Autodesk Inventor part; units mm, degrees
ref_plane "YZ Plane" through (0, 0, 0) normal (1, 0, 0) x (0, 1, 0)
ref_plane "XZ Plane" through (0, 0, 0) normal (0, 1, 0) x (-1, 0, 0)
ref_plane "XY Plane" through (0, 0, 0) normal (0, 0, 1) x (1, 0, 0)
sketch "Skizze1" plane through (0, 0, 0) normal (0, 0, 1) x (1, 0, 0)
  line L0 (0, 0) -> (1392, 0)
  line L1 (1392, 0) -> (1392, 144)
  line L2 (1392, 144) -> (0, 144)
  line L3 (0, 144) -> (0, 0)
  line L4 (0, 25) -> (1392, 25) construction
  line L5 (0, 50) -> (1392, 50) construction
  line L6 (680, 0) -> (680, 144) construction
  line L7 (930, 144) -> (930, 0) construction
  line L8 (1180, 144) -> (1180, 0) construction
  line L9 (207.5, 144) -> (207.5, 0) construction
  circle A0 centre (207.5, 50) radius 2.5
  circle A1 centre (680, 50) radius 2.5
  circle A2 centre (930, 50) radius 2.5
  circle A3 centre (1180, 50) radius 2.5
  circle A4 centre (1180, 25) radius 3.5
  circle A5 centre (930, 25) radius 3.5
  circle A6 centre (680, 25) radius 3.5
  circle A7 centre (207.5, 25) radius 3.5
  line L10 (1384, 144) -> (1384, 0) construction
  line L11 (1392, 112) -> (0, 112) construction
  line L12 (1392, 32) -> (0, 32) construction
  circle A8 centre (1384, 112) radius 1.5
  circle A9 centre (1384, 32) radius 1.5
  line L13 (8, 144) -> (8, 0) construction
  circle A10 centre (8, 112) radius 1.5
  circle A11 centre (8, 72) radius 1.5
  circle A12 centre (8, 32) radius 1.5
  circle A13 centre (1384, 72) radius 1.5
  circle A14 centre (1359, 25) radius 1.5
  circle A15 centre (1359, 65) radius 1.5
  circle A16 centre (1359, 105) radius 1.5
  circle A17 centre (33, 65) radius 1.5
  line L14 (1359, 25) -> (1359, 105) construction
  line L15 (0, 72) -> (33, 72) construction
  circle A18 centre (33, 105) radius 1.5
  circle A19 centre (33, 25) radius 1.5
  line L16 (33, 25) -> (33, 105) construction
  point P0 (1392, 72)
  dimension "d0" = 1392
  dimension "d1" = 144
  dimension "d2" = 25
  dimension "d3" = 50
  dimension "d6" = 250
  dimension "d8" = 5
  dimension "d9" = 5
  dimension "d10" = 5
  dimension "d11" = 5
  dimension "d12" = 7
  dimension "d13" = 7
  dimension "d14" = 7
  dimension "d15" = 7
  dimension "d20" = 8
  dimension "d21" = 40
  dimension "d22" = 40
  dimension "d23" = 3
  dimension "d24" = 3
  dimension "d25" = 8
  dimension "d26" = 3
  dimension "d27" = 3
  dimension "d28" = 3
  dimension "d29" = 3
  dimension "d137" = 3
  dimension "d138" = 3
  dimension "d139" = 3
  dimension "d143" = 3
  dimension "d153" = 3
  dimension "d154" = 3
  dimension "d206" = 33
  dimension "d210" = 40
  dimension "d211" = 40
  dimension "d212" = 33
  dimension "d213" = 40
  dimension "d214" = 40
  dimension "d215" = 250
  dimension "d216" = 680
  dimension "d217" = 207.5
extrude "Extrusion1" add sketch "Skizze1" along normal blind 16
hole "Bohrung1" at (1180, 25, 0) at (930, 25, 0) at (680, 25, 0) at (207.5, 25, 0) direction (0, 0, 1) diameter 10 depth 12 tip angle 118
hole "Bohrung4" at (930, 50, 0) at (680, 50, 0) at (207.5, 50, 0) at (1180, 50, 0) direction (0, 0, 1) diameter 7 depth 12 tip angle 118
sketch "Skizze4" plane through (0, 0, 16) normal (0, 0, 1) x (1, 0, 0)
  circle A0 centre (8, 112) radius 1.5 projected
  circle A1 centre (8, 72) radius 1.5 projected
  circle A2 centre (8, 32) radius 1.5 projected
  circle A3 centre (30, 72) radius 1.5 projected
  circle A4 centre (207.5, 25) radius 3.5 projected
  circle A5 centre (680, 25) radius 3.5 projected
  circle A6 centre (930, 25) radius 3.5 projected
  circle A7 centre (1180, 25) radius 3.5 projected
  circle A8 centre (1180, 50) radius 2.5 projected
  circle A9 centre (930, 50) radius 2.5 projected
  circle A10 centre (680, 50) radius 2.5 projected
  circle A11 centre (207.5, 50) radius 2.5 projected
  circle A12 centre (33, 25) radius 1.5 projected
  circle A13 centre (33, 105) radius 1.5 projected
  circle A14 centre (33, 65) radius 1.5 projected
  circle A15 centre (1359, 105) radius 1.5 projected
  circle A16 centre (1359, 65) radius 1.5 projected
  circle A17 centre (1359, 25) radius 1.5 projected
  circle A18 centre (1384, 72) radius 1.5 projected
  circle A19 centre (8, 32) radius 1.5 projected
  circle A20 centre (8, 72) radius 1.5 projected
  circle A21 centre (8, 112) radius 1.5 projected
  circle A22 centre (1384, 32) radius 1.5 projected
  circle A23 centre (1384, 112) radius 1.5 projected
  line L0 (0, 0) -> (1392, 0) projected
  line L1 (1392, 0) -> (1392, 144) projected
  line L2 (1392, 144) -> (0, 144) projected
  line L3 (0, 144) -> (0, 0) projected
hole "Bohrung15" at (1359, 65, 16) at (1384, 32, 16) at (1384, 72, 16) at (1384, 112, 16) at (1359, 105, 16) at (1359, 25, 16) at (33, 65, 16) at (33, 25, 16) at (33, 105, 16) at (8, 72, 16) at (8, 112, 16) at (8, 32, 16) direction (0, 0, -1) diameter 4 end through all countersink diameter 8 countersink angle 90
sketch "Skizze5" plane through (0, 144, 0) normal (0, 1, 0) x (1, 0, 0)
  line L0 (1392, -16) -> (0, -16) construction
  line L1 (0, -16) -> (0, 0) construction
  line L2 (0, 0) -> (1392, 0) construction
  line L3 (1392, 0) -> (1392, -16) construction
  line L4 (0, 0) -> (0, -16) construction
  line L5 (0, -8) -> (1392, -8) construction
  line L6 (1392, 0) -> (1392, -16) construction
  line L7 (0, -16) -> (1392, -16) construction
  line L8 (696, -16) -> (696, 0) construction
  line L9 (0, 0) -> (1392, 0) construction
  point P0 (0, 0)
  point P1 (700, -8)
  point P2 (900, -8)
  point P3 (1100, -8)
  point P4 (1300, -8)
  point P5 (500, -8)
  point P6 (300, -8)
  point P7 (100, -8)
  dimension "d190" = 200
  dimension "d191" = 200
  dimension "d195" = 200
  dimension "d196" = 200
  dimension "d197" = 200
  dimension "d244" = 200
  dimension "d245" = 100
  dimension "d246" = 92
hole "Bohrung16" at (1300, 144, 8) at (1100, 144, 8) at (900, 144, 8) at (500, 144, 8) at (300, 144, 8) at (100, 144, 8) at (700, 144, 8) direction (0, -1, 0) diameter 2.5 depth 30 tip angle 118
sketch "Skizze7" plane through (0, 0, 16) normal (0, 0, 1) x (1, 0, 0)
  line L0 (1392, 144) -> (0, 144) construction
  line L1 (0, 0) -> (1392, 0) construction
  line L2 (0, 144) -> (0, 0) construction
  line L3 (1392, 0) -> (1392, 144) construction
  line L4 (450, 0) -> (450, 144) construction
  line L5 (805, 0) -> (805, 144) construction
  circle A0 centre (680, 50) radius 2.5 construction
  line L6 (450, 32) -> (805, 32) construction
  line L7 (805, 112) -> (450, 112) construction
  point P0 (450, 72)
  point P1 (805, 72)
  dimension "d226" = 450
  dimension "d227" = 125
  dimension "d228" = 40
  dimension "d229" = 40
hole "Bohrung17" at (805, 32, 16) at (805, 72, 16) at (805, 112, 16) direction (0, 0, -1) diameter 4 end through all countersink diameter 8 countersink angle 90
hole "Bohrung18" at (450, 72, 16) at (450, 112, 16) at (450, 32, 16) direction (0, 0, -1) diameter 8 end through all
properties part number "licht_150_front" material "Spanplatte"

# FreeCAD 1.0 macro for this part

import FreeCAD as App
import Part
import Sketcher

V = App.Vector

doc = App.newDocument("Part")
body = doc.addObject("PartDesign::Body", "Body")

# Sketch on XY plane
sketch1 = body.newObject("Sketcher::SketchObject", "Sketch")
sketch1.AttachmentSupport = (doc.getObject("XY_Plane"), [""])
sketch1.MapMode = "FlatFace"
sketch1.addGeometry(Part.LineSegment(V(0, 144, 0), V(0, 0, 0)), False)
sketch1.addGeometry(Part.LineSegment(V(0, 0, 0), V(1392, 0, 0)), False)
sketch1.addGeometry(Part.LineSegment(V(1392, 0, 0), V(1392, 144, 0)), False)
sketch1.addGeometry(Part.LineSegment(V(1392, 144, 0), V(0, 144, 0)), False)
sketch1.addGeometry(Part.Circle(V(33, 25, 0), V(0, 0, 1), 1.5), False)
sketch1.addGeometry(Part.Circle(V(8, 32, 0), V(0, 0, 1), 1.5), False)
sketch1.addGeometry(Part.Circle(V(207.5, 25, 0), V(0, 0, 1), 3.5), False)
sketch1.addGeometry(Part.Circle(V(680, 25, 0), V(0, 0, 1), 3.5), False)
sketch1.addGeometry(Part.Circle(V(207.5, 50, 0), V(0, 0, 1), 2.5), False)
sketch1.addGeometry(Part.Circle(V(33, 65, 0), V(0, 0, 1), 1.5), False)
sketch1.addGeometry(Part.Circle(V(680, 50, 0), V(0, 0, 1), 2.5), False)
sketch1.addGeometry(Part.Circle(V(930, 25, 0), V(0, 0, 1), 3.5), False)
sketch1.addGeometry(Part.Circle(V(1180, 25, 0), V(0, 0, 1), 3.5), False)
sketch1.addGeometry(Part.Circle(V(1359, 25, 0), V(0, 0, 1), 1.5), False)
sketch1.addGeometry(Part.Circle(V(1384, 32, 0), V(0, 0, 1), 1.5), False)
sketch1.addGeometry(Part.Circle(V(930, 50, 0), V(0, 0, 1), 2.5), False)
sketch1.addGeometry(Part.Circle(V(1180, 50, 0), V(0, 0, 1), 2.5), False)
sketch1.addGeometry(Part.Circle(V(1359, 65, 0), V(0, 0, 1), 1.5), False)
sketch1.addGeometry(Part.Circle(V(8, 72, 0), V(0, 0, 1), 1.5), False)
sketch1.addGeometry(Part.Circle(V(33, 105, 0), V(0, 0, 1), 1.5), False)
sketch1.addGeometry(Part.Circle(V(8, 112, 0), V(0, 0, 1), 1.5), False)
sketch1.addGeometry(Part.Circle(V(1384, 72, 0), V(0, 0, 1), 1.5), False)
sketch1.addGeometry(Part.Circle(V(1359, 105, 0), V(0, 0, 1), 1.5), False)
sketch1.addGeometry(Part.Circle(V(1384, 112, 0), V(0, 0, 1), 1.5), False)
sketch1.addConstraint(Sketcher.Constraint("Coincident", 0, 2, 1, 1))
sketch1.addConstraint(Sketcher.Constraint("Coincident", 1, 2, 2, 1))
sketch1.addConstraint(Sketcher.Constraint("Coincident", 2, 2, 3, 1))
sketch1.addConstraint(Sketcher.Constraint("Coincident", 3, 2, 0, 1))
sketch1.addConstraint(Sketcher.Constraint("Vertical", 0))
sketch1.addConstraint(Sketcher.Constraint("Horizontal", 1))
sketch1.addConstraint(Sketcher.Constraint("Vertical", 2))
sketch1.addConstraint(Sketcher.Constraint("Horizontal", 3))
sketch1.addConstraint(Sketcher.Constraint("Coincident", 0, 2, -1, 1))
sketch1.addConstraint(Sketcher.Constraint("Equal", 4, 5))
sketch1.addConstraint(Sketcher.Constraint("Equal", 6, 7))
sketch1.addConstraint(Sketcher.Constraint("Equal", 5, 9))
sketch1.addConstraint(Sketcher.Constraint("Equal", 8, 10))
sketch1.addConstraint(Sketcher.Constraint("Equal", 7, 11))
sketch1.addConstraint(Sketcher.Constraint("Equal", 11, 12))
sketch1.addConstraint(Sketcher.Constraint("Equal", 9, 13))
sketch1.addConstraint(Sketcher.Constraint("Equal", 13, 14))
sketch1.addConstraint(Sketcher.Constraint("Equal", 10, 15))
sketch1.addConstraint(Sketcher.Constraint("Equal", 15, 16))
sketch1.addConstraint(Sketcher.Constraint("Equal", 14, 17))
sketch1.addConstraint(Sketcher.Constraint("Equal", 17, 18))
sketch1.addConstraint(Sketcher.Constraint("Equal", 18, 19))
sketch1.addConstraint(Sketcher.Constraint("Equal", 19, 20))
sketch1.addConstraint(Sketcher.Constraint("Equal", 20, 21))
sketch1.addConstraint(Sketcher.Constraint("Equal", 21, 22))
sketch1.addConstraint(Sketcher.Constraint("Equal", 22, 23))
sketch1.addConstraint(Sketcher.Constraint("Horizontal", 4, 3, 6, 3))
sketch1.addConstraint(Sketcher.Constraint("Horizontal", 6, 3, 7, 3))
sketch1.addConstraint(Sketcher.Constraint("Horizontal", 8, 3, 10, 3))
sketch1.addConstraint(Sketcher.Constraint("Horizontal", 7, 3, 11, 3))
sketch1.addConstraint(Sketcher.Constraint("Horizontal", 11, 3, 12, 3))
sketch1.addConstraint(Sketcher.Constraint("Horizontal", 12, 3, 13, 3))
sketch1.addConstraint(Sketcher.Constraint("Horizontal", 5, 3, 14, 3))
sketch1.addConstraint(Sketcher.Constraint("Horizontal", 10, 3, 15, 3))
sketch1.addConstraint(Sketcher.Constraint("Horizontal", 15, 3, 16, 3))
sketch1.addConstraint(Sketcher.Constraint("Horizontal", 9, 3, 17, 3))
sketch1.addConstraint(Sketcher.Constraint("Horizontal", 18, 3, 21, 3))
sketch1.addConstraint(Sketcher.Constraint("Horizontal", 19, 3, 22, 3))
sketch1.addConstraint(Sketcher.Constraint("Horizontal", 20, 3, 23, 3))
sketch1.addConstraint(Sketcher.Constraint("Vertical", 6, 3, 8, 3))
sketch1.addConstraint(Sketcher.Constraint("Vertical", 4, 3, 9, 3))
sketch1.addConstraint(Sketcher.Constraint("Vertical", 7, 3, 10, 3))
sketch1.addConstraint(Sketcher.Constraint("Vertical", 11, 3, 15, 3))
sketch1.addConstraint(Sketcher.Constraint("Vertical", 12, 3, 16, 3))
sketch1.addConstraint(Sketcher.Constraint("Vertical", 13, 3, 17, 3))
sketch1.addConstraint(Sketcher.Constraint("Vertical", 5, 3, 18, 3))
sketch1.addConstraint(Sketcher.Constraint("Vertical", 9, 3, 19, 3))
sketch1.addConstraint(Sketcher.Constraint("Vertical", 18, 3, 20, 3))
sketch1.addConstraint(Sketcher.Constraint("Vertical", 14, 3, 21, 3))
sketch1.addConstraint(Sketcher.Constraint("Vertical", 17, 3, 22, 3))
sketch1.addConstraint(Sketcher.Constraint("Vertical", 21, 3, 23, 3))
sketch1.addConstraint(Sketcher.Constraint("Diameter", 4, 3.0))
sketch1.addConstraint(Sketcher.Constraint("Diameter", 6, 7.0))
sketch1.addConstraint(Sketcher.Constraint("Diameter", 8, 5.0))
sketch1.addConstraint(Sketcher.Constraint("DistanceX", 1, 1, 1, 2, 1392.0))
sketch1.addConstraint(Sketcher.Constraint("DistanceY", 0, 2, 0, 1, 144.0))
sketch1.addConstraint(Sketcher.Constraint("DistanceX", -1, 1, 4, 3, 33.0))
sketch1.addConstraint(Sketcher.Constraint("DistanceY", -1, 1, 4, 3, 25.0))
sketch1.addConstraint(Sketcher.Constraint("DistanceX", -1, 1, 5, 3, 8.0))
sketch1.addConstraint(Sketcher.Constraint("DistanceX", -1, 1, 7, 3, 680.0))
sketch1.addConstraint(Sketcher.Constraint("DistanceY", -1, 1, 8, 3, 50.0))
sketch1.addConstraint(Sketcher.Constraint("DistanceY", 4, 3, 5, 3, 7.0))
sketch1.addConstraint(Sketcher.Constraint("DistanceY", 4, 3, 9, 3, 40.0))
sketch1.addConstraint(Sketcher.Constraint("DistanceX", 7, 3, 11, 3, 250.0))
sketch1.addConstraint(Sketcher.Constraint("DistanceX", 11, 3, 12, 3, 250.0))
sketch1.addConstraint(Sketcher.Constraint("DistanceX", 13, 3, 14, 3, 25.0))
sketch1.addConstraint(Sketcher.Constraint("DistanceY", 9, 3, 18, 3, 7.0))
sketch1.addConstraint(Sketcher.Constraint("DistanceY", 9, 3, 19, 3, 40.0))
sketch1.addConstraint(Sketcher.Constraint("DistanceY", 19, 3, 20, 3, 7.0))
sketch1.addConstraint(Sketcher.Constraint("DistanceX", 14, 3, 1, 2, 8.0))
sketch1.addConstraint(Sketcher.Constraint("DistanceX", -1, 1, 6, 3, 207.5))
pad1 = body.newObject("PartDesign::Pad", "Pad")
pad1.Profile = sketch1
pad1.Length = 16

# Sketch on XY plane
sketch2 = body.newObject("Sketcher::SketchObject", "Sketch001")
sketch2.AttachmentSupport = (doc.getObject("XY_Plane"), [""])
sketch2.MapMode = "FlatFace"
sketch2.addGeometry(Part.Circle(V(1180, 25, 0), V(0, 0, 1), 5), False)
sketch2.addGeometry(Part.Circle(V(930, 25, 0), V(0, 0, 1), 5), False)
sketch2.addGeometry(Part.Circle(V(680, 25, 0), V(0, 0, 1), 5), False)
sketch2.addGeometry(Part.Circle(V(208, 25, 0), V(0, 0, 1), 5), False)
sketch2.addConstraint(Sketcher.Constraint("Equal", 0, 1))
sketch2.addConstraint(Sketcher.Constraint("Equal", 1, 2))
sketch2.addConstraint(Sketcher.Constraint("Equal", 2, 3))
sketch2.addConstraint(Sketcher.Constraint("Horizontal", 0, 3, 1, 3))
sketch2.addConstraint(Sketcher.Constraint("Horizontal", 1, 3, 2, 3))
sketch2.addConstraint(Sketcher.Constraint("Horizontal", 2, 3, 3, 3))
sketch2.addConstraint(Sketcher.Constraint("Diameter", 0, 10.0))
sketch2.addConstraint(Sketcher.Constraint("DistanceX", -1, 1, 0, 3, 1180.0))
sketch2.addConstraint(Sketcher.Constraint("DistanceY", -1, 1, 0, 3, 25.0))
sketch2.addConstraint(Sketcher.Constraint("DistanceX", -1, 1, 1, 3, 930.0))
sketch2.addConstraint(Sketcher.Constraint("DistanceX", -1, 1, 2, 3, 680.0))
sketch2.addConstraint(Sketcher.Constraint("DistanceX", -1, 1, 3, 3, 207.5))
doc.recompute()
hole = body.newObject("PartDesign::Hole", "Hole")
hole.Profile = sketch2
hole.ThreadType = "None"
hole.Diameter = 10
hole.DepthType = "Dimension"
hole.Depth = 12
hole.DrillPoint = "Angled"
hole.DrillPointAngle = 118
hole.Reversed = True

# Sketch on XY plane
sketch3 = body.newObject("Sketcher::SketchObject", "Sketch002")
sketch3.AttachmentSupport = (doc.getObject("XY_Plane"), [""])
sketch3.MapMode = "FlatFace"
sketch3.addGeometry(Part.Circle(V(930, 50, 0), V(0, 0, 1), 3.5), False)
sketch3.addGeometry(Part.Circle(V(680, 50, 0), V(0, 0, 1), 3.5), False)
sketch3.addGeometry(Part.Circle(V(207.5, 50, 0), V(0, 0, 1), 3.5), False)
sketch3.addGeometry(Part.Circle(V(1180, 50, 0), V(0, 0, 1), 3.5), False)
sketch3.addConstraint(Sketcher.Constraint("Equal", 0, 1))
sketch3.addConstraint(Sketcher.Constraint("Equal", 1, 2))
sketch3.addConstraint(Sketcher.Constraint("Equal", 2, 3))
sketch3.addConstraint(Sketcher.Constraint("Horizontal", 0, 3, 1, 3))
sketch3.addConstraint(Sketcher.Constraint("Horizontal", 1, 3, 2, 3))
sketch3.addConstraint(Sketcher.Constraint("Horizontal", 2, 3, 3, 3))
sketch3.addConstraint(Sketcher.Constraint("Diameter", 0, 7.0))
sketch3.addConstraint(Sketcher.Constraint("DistanceX", -1, 1, 0, 3, 930.0))
sketch3.addConstraint(Sketcher.Constraint("DistanceY", -1, 1, 0, 3, 50.0))
sketch3.addConstraint(Sketcher.Constraint("DistanceX", -1, 1, 1, 3, 680.0))
sketch3.addConstraint(Sketcher.Constraint("DistanceX", -1, 1, 3, 3, 1180.0))
sketch3.addConstraint(Sketcher.Constraint("DistanceX", -1, 1, 2, 3, 207.5))
doc.recompute()
hole2 = body.newObject("PartDesign::Hole", "Hole001")
hole2.Profile = sketch3
hole2.ThreadType = "None"
hole2.Diameter = 7
hole2.DepthType = "Dimension"
hole2.Depth = 12
hole2.DrillPoint = "Angled"
hole2.DrillPointAngle = 118
hole2.Reversed = True

# Sketch on XY plane
sketch4 = body.newObject("Sketcher::SketchObject", "Sketch003")
sketch4.AttachmentSupport = (doc.getObject("XY_Plane"), [""])
sketch4.MapMode = "FlatFace"
sketch4.AttachmentOffset = App.Placement(V(0, 0, 16), App.Rotation())
sketch4.addGeometry(Part.Circle(V(1359, 65, 0), V(0, 0, 1), 2), False)
sketch4.addGeometry(Part.Circle(V(1384, 32, 0), V(0, 0, 1), 2), False)
sketch4.addGeometry(Part.Circle(V(1384, 72, 0), V(0, 0, 1), 2), False)
sketch4.addGeometry(Part.Circle(V(1384, 112, 0), V(0, 0, 1), 2), False)
sketch4.addGeometry(Part.Circle(V(1359, 105, 0), V(0, 0, 1), 2), False)
sketch4.addGeometry(Part.Circle(V(1359, 25, 0), V(0, 0, 1), 2), False)
sketch4.addGeometry(Part.Circle(V(33, 65, 0), V(0, 0, 1), 2), False)
sketch4.addGeometry(Part.Circle(V(33, 25, 0), V(0, 0, 1), 2), False)
sketch4.addGeometry(Part.Circle(V(33, 105, 0), V(0, 0, 1), 2), False)
sketch4.addGeometry(Part.Circle(V(8, 72, 0), V(0, 0, 1), 2), False)
sketch4.addGeometry(Part.Circle(V(8, 112, 0), V(0, 0, 1), 2), False)
sketch4.addGeometry(Part.Circle(V(8, 32, 0), V(0, 0, 1), 2), False)
sketch4.addConstraint(Sketcher.Constraint("Equal", 0, 1))
sketch4.addConstraint(Sketcher.Constraint("Equal", 1, 2))
sketch4.addConstraint(Sketcher.Constraint("Equal", 2, 3))
sketch4.addConstraint(Sketcher.Constraint("Equal", 3, 4))
sketch4.addConstraint(Sketcher.Constraint("Equal", 4, 5))
sketch4.addConstraint(Sketcher.Constraint("Equal", 5, 6))
sketch4.addConstraint(Sketcher.Constraint("Equal", 6, 7))
sketch4.addConstraint(Sketcher.Constraint("Equal", 7, 8))
sketch4.addConstraint(Sketcher.Constraint("Equal", 8, 9))
sketch4.addConstraint(Sketcher.Constraint("Equal", 9, 10))
sketch4.addConstraint(Sketcher.Constraint("Equal", 10, 11))
sketch4.addConstraint(Sketcher.Constraint("Horizontal", 0, 3, 6, 3))
sketch4.addConstraint(Sketcher.Constraint("Horizontal", 5, 3, 7, 3))
sketch4.addConstraint(Sketcher.Constraint("Horizontal", 4, 3, 8, 3))
sketch4.addConstraint(Sketcher.Constraint("Horizontal", 2, 3, 9, 3))
sketch4.addConstraint(Sketcher.Constraint("Horizontal", 3, 3, 10, 3))
sketch4.addConstraint(Sketcher.Constraint("Horizontal", 1, 3, 11, 3))
sketch4.addConstraint(Sketcher.Constraint("Vertical", 1, 3, 2, 3))
sketch4.addConstraint(Sketcher.Constraint("Vertical", 2, 3, 3, 3))
sketch4.addConstraint(Sketcher.Constraint("Vertical", 0, 3, 4, 3))
sketch4.addConstraint(Sketcher.Constraint("Vertical", 4, 3, 5, 3))
sketch4.addConstraint(Sketcher.Constraint("Vertical", 6, 3, 7, 3))
sketch4.addConstraint(Sketcher.Constraint("Vertical", 7, 3, 8, 3))
sketch4.addConstraint(Sketcher.Constraint("Vertical", 9, 3, 10, 3))
sketch4.addConstraint(Sketcher.Constraint("Vertical", 10, 3, 11, 3))
sketch4.addConstraint(Sketcher.Constraint("Diameter", 0, 4.0))
sketch4.addConstraint(Sketcher.Constraint("DistanceX", -1, 1, 0, 3, 1359.0))
sketch4.addConstraint(Sketcher.Constraint("DistanceY", -1, 1, 0, 3, 65.0))
sketch4.addConstraint(Sketcher.Constraint("DistanceX", -1, 1, 1, 3, 1384.0))
sketch4.addConstraint(Sketcher.Constraint("DistanceY", -1, 1, 1, 3, 32.0))
sketch4.addConstraint(Sketcher.Constraint("DistanceY", -1, 1, 2, 3, 72.0))
sketch4.addConstraint(Sketcher.Constraint("DistanceY", -1, 1, 3, 3, 112.0))
sketch4.addConstraint(Sketcher.Constraint("DistanceY", -1, 1, 4, 3, 105.0))
sketch4.addConstraint(Sketcher.Constraint("DistanceY", -1, 1, 5, 3, 25.0))
sketch4.addConstraint(Sketcher.Constraint("DistanceX", -1, 1, 6, 3, 33.0))
sketch4.addConstraint(Sketcher.Constraint("DistanceX", -1, 1, 9, 3, 8.0))
doc.recompute()
hole3 = body.newObject("PartDesign::Hole", "Hole002")
hole3.Profile = sketch4
hole3.ThreadType = "None"
hole3.Diameter = 4
hole3.DepthType = "ThroughAll"
hole3.HoleCutType = "Countersink"
hole3.HoleCutDiameter = 8
hole3.HoleCutCountersinkAngle = 90

# Sketch on XZ plane
sketch5 = body.newObject("Sketcher::SketchObject", "Sketch004")
sketch5.AttachmentSupport = (doc.getObject("XZ_Plane"), [""])
sketch5.MapMode = "FlatFace"
sketch5.AttachmentOffset = App.Placement(V(0, 0, -144), App.Rotation())
sketch5.addGeometry(Part.Circle(V(1300, 8, 0), V(0, 0, 1), 1.2), False)
sketch5.addGeometry(Part.Circle(V(1100, 8, 0), V(0, 0, 1), 1.2), False)
sketch5.addGeometry(Part.Circle(V(900, 8, 0), V(0, 0, 1), 1.2), False)
sketch5.addGeometry(Part.Circle(V(500, 8, 0), V(0, 0, 1), 1.2), False)
sketch5.addGeometry(Part.Circle(V(300, 8, 0), V(0, 0, 1), 1.2), False)
sketch5.addGeometry(Part.Circle(V(100, 8, 0), V(0, 0, 1), 1.2), False)
sketch5.addGeometry(Part.Circle(V(700, 8, 0), V(0, 0, 1), 1.2), False)
sketch5.addConstraint(Sketcher.Constraint("Equal", 0, 1))
sketch5.addConstraint(Sketcher.Constraint("Equal", 1, 2))
sketch5.addConstraint(Sketcher.Constraint("Equal", 2, 3))
sketch5.addConstraint(Sketcher.Constraint("Equal", 3, 4))
sketch5.addConstraint(Sketcher.Constraint("Equal", 4, 5))
sketch5.addConstraint(Sketcher.Constraint("Equal", 5, 6))
sketch5.addConstraint(Sketcher.Constraint("Horizontal", 0, 3, 1, 3))
sketch5.addConstraint(Sketcher.Constraint("Horizontal", 1, 3, 2, 3))
sketch5.addConstraint(Sketcher.Constraint("Horizontal", 2, 3, 3, 3))
sketch5.addConstraint(Sketcher.Constraint("Horizontal", 3, 3, 4, 3))
sketch5.addConstraint(Sketcher.Constraint("Horizontal", 4, 3, 5, 3))
sketch5.addConstraint(Sketcher.Constraint("Horizontal", 5, 3, 6, 3))
sketch5.addConstraint(Sketcher.Constraint("Diameter", 0, 2.5))
sketch5.addConstraint(Sketcher.Constraint("DistanceX", -1, 1, 0, 3, 1300.0))
sketch5.addConstraint(Sketcher.Constraint("DistanceY", -1, 1, 0, 3, 8.0))
sketch5.addConstraint(Sketcher.Constraint("DistanceX", -1, 1, 1, 3, 1100.0))
sketch5.addConstraint(Sketcher.Constraint("DistanceX", -1, 1, 2, 3, 900.0))
sketch5.addConstraint(Sketcher.Constraint("DistanceX", -1, 1, 3, 3, 500.0))
sketch5.addConstraint(Sketcher.Constraint("DistanceX", -1, 1, 4, 3, 300.0))
sketch5.addConstraint(Sketcher.Constraint("DistanceX", -1, 1, 5, 3, 100.0))
sketch5.addConstraint(Sketcher.Constraint("DistanceX", -1, 1, 6, 3, 700.0))
doc.recompute()
hole4 = body.newObject("PartDesign::Hole", "Hole003")
hole4.Profile = sketch5
hole4.ThreadType = "None"
hole4.Diameter = 2.5
hole4.DepthType = "Dimension"
hole4.Depth = 30
hole4.DrillPoint = "Angled"
hole4.DrillPointAngle = 118
hole4.Reversed = True

# Sketch on XY plane
sketch6 = body.newObject("Sketcher::SketchObject", "Sketch005")
sketch6.AttachmentSupport = (doc.getObject("XY_Plane"), [""])
sketch6.MapMode = "FlatFace"
sketch6.AttachmentOffset = App.Placement(V(0, 0, 16), App.Rotation())
sketch6.addGeometry(Part.Circle(V(805, 32, 0), V(0, 0, 1), 2), False)
sketch6.addGeometry(Part.Circle(V(805, 72, 0), V(0, 0, 1), 2), False)
sketch6.addGeometry(Part.Circle(V(805, 112, 0), V(0, 0, 1), 2), False)
sketch6.addConstraint(Sketcher.Constraint("Equal", 0, 1))
sketch6.addConstraint(Sketcher.Constraint("Equal", 1, 2))
sketch6.addConstraint(Sketcher.Constraint("Vertical", 0, 3, 1, 3))
sketch6.addConstraint(Sketcher.Constraint("Vertical", 1, 3, 2, 3))
sketch6.addConstraint(Sketcher.Constraint("Diameter", 0, 4.0))
sketch6.addConstraint(Sketcher.Constraint("DistanceX", -1, 1, 0, 3, 805.0))
sketch6.addConstraint(Sketcher.Constraint("DistanceY", -1, 1, 0, 3, 32.0))
sketch6.addConstraint(Sketcher.Constraint("DistanceY", -1, 1, 1, 3, 72.0))
sketch6.addConstraint(Sketcher.Constraint("DistanceY", -1, 1, 2, 3, 112.0))
doc.recompute()
hole5 = body.newObject("PartDesign::Hole", "Hole004")
hole5.Profile = sketch6
hole5.ThreadType = "None"
hole5.Diameter = 4
hole5.DepthType = "ThroughAll"
hole5.HoleCutType = "Countersink"
hole5.HoleCutDiameter = 8
hole5.HoleCutCountersinkAngle = 90

# Sketch on XY plane
sketch7 = body.newObject("Sketcher::SketchObject", "Sketch006")
sketch7.AttachmentSupport = (doc.getObject("XY_Plane"), [""])
sketch7.MapMode = "FlatFace"
sketch7.AttachmentOffset = App.Placement(V(0, 0, 16), App.Rotation())
sketch7.addGeometry(Part.Circle(V(450, 72, 0), V(0, 0, 1), 4), False)
sketch7.addGeometry(Part.Circle(V(450, 112, 0), V(0, 0, 1), 4), False)
sketch7.addGeometry(Part.Circle(V(450, 32, 0), V(0, 0, 1), 4), False)
sketch7.addConstraint(Sketcher.Constraint("Equal", 0, 1))
sketch7.addConstraint(Sketcher.Constraint("Equal", 1, 2))
sketch7.addConstraint(Sketcher.Constraint("Vertical", 0, 3, 1, 3))
sketch7.addConstraint(Sketcher.Constraint("Vertical", 1, 3, 2, 3))
sketch7.addConstraint(Sketcher.Constraint("Diameter", 0, 8.0))
sketch7.addConstraint(Sketcher.Constraint("DistanceX", -1, 1, 0, 3, 450.0))
sketch7.addConstraint(Sketcher.Constraint("DistanceY", -1, 1, 0, 3, 72.0))
sketch7.addConstraint(Sketcher.Constraint("DistanceY", -1, 1, 1, 3, 112.0))
sketch7.addConstraint(Sketcher.Constraint("DistanceY", -1, 1, 2, 3, 32.0))
doc.recompute()
hole6 = body.newObject("PartDesign::Hole", "Hole005")
hole6.Profile = sketch7
hole6.ThreadType = "None"
hole6.Diameter = 8
hole6.DepthType = "ThroughAll"

doc.recompute()
